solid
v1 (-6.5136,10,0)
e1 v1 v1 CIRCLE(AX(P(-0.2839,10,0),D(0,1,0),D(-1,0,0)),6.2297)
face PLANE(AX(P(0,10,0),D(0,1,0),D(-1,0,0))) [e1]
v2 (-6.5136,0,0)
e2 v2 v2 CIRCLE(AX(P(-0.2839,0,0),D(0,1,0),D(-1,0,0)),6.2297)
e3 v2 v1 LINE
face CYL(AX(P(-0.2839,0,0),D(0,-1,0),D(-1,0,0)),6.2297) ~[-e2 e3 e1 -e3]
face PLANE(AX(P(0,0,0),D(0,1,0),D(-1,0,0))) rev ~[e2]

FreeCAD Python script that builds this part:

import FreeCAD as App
import Part
import Sketcher

V = App.Vector

doc = App.newDocument("Part")
params = doc.addObject("Spreadsheet::Sheet", "Params")
for row, (alias, value) in enumerate([
    ("pad1_length", "10 mm"),
], start=1):
    params.set(f"A{row}", alias)
    params.set(f"B{row}", "=" + value)
    params.setAlias(f"B{row}", alias)

body = doc.addObject("PartDesign::Body", "Body")

sketch1 = body.newObject("Sketcher::SketchObject", "Sketch")
sketch1.AttachmentSupport = (doc.getObject("XZ_Plane"), [""])
sketch1.MapMode = "FlatFace"
sketch1.addGeometry(Part.Circle(V(0, 0, 0), V(0, 0, 1), 6), False)
sketch1.addConstraint(Sketcher.Constraint("PointOnObject", 0, 3, -1))
sketch1.addConstraint(Sketcher.Constraint("Diameter", 0, 12.4594))
sketch1.addConstraint(Sketcher.Constraint("DistanceX", 0, 3, -1, 1, 0.284))
pad1 = body.newObject("PartDesign::Pad", "Pad")
pad1.Profile = sketch1
pad1.setExpression("Length", "Params.pad1_length")
pad1.Reversed = True

doc.recompute()
